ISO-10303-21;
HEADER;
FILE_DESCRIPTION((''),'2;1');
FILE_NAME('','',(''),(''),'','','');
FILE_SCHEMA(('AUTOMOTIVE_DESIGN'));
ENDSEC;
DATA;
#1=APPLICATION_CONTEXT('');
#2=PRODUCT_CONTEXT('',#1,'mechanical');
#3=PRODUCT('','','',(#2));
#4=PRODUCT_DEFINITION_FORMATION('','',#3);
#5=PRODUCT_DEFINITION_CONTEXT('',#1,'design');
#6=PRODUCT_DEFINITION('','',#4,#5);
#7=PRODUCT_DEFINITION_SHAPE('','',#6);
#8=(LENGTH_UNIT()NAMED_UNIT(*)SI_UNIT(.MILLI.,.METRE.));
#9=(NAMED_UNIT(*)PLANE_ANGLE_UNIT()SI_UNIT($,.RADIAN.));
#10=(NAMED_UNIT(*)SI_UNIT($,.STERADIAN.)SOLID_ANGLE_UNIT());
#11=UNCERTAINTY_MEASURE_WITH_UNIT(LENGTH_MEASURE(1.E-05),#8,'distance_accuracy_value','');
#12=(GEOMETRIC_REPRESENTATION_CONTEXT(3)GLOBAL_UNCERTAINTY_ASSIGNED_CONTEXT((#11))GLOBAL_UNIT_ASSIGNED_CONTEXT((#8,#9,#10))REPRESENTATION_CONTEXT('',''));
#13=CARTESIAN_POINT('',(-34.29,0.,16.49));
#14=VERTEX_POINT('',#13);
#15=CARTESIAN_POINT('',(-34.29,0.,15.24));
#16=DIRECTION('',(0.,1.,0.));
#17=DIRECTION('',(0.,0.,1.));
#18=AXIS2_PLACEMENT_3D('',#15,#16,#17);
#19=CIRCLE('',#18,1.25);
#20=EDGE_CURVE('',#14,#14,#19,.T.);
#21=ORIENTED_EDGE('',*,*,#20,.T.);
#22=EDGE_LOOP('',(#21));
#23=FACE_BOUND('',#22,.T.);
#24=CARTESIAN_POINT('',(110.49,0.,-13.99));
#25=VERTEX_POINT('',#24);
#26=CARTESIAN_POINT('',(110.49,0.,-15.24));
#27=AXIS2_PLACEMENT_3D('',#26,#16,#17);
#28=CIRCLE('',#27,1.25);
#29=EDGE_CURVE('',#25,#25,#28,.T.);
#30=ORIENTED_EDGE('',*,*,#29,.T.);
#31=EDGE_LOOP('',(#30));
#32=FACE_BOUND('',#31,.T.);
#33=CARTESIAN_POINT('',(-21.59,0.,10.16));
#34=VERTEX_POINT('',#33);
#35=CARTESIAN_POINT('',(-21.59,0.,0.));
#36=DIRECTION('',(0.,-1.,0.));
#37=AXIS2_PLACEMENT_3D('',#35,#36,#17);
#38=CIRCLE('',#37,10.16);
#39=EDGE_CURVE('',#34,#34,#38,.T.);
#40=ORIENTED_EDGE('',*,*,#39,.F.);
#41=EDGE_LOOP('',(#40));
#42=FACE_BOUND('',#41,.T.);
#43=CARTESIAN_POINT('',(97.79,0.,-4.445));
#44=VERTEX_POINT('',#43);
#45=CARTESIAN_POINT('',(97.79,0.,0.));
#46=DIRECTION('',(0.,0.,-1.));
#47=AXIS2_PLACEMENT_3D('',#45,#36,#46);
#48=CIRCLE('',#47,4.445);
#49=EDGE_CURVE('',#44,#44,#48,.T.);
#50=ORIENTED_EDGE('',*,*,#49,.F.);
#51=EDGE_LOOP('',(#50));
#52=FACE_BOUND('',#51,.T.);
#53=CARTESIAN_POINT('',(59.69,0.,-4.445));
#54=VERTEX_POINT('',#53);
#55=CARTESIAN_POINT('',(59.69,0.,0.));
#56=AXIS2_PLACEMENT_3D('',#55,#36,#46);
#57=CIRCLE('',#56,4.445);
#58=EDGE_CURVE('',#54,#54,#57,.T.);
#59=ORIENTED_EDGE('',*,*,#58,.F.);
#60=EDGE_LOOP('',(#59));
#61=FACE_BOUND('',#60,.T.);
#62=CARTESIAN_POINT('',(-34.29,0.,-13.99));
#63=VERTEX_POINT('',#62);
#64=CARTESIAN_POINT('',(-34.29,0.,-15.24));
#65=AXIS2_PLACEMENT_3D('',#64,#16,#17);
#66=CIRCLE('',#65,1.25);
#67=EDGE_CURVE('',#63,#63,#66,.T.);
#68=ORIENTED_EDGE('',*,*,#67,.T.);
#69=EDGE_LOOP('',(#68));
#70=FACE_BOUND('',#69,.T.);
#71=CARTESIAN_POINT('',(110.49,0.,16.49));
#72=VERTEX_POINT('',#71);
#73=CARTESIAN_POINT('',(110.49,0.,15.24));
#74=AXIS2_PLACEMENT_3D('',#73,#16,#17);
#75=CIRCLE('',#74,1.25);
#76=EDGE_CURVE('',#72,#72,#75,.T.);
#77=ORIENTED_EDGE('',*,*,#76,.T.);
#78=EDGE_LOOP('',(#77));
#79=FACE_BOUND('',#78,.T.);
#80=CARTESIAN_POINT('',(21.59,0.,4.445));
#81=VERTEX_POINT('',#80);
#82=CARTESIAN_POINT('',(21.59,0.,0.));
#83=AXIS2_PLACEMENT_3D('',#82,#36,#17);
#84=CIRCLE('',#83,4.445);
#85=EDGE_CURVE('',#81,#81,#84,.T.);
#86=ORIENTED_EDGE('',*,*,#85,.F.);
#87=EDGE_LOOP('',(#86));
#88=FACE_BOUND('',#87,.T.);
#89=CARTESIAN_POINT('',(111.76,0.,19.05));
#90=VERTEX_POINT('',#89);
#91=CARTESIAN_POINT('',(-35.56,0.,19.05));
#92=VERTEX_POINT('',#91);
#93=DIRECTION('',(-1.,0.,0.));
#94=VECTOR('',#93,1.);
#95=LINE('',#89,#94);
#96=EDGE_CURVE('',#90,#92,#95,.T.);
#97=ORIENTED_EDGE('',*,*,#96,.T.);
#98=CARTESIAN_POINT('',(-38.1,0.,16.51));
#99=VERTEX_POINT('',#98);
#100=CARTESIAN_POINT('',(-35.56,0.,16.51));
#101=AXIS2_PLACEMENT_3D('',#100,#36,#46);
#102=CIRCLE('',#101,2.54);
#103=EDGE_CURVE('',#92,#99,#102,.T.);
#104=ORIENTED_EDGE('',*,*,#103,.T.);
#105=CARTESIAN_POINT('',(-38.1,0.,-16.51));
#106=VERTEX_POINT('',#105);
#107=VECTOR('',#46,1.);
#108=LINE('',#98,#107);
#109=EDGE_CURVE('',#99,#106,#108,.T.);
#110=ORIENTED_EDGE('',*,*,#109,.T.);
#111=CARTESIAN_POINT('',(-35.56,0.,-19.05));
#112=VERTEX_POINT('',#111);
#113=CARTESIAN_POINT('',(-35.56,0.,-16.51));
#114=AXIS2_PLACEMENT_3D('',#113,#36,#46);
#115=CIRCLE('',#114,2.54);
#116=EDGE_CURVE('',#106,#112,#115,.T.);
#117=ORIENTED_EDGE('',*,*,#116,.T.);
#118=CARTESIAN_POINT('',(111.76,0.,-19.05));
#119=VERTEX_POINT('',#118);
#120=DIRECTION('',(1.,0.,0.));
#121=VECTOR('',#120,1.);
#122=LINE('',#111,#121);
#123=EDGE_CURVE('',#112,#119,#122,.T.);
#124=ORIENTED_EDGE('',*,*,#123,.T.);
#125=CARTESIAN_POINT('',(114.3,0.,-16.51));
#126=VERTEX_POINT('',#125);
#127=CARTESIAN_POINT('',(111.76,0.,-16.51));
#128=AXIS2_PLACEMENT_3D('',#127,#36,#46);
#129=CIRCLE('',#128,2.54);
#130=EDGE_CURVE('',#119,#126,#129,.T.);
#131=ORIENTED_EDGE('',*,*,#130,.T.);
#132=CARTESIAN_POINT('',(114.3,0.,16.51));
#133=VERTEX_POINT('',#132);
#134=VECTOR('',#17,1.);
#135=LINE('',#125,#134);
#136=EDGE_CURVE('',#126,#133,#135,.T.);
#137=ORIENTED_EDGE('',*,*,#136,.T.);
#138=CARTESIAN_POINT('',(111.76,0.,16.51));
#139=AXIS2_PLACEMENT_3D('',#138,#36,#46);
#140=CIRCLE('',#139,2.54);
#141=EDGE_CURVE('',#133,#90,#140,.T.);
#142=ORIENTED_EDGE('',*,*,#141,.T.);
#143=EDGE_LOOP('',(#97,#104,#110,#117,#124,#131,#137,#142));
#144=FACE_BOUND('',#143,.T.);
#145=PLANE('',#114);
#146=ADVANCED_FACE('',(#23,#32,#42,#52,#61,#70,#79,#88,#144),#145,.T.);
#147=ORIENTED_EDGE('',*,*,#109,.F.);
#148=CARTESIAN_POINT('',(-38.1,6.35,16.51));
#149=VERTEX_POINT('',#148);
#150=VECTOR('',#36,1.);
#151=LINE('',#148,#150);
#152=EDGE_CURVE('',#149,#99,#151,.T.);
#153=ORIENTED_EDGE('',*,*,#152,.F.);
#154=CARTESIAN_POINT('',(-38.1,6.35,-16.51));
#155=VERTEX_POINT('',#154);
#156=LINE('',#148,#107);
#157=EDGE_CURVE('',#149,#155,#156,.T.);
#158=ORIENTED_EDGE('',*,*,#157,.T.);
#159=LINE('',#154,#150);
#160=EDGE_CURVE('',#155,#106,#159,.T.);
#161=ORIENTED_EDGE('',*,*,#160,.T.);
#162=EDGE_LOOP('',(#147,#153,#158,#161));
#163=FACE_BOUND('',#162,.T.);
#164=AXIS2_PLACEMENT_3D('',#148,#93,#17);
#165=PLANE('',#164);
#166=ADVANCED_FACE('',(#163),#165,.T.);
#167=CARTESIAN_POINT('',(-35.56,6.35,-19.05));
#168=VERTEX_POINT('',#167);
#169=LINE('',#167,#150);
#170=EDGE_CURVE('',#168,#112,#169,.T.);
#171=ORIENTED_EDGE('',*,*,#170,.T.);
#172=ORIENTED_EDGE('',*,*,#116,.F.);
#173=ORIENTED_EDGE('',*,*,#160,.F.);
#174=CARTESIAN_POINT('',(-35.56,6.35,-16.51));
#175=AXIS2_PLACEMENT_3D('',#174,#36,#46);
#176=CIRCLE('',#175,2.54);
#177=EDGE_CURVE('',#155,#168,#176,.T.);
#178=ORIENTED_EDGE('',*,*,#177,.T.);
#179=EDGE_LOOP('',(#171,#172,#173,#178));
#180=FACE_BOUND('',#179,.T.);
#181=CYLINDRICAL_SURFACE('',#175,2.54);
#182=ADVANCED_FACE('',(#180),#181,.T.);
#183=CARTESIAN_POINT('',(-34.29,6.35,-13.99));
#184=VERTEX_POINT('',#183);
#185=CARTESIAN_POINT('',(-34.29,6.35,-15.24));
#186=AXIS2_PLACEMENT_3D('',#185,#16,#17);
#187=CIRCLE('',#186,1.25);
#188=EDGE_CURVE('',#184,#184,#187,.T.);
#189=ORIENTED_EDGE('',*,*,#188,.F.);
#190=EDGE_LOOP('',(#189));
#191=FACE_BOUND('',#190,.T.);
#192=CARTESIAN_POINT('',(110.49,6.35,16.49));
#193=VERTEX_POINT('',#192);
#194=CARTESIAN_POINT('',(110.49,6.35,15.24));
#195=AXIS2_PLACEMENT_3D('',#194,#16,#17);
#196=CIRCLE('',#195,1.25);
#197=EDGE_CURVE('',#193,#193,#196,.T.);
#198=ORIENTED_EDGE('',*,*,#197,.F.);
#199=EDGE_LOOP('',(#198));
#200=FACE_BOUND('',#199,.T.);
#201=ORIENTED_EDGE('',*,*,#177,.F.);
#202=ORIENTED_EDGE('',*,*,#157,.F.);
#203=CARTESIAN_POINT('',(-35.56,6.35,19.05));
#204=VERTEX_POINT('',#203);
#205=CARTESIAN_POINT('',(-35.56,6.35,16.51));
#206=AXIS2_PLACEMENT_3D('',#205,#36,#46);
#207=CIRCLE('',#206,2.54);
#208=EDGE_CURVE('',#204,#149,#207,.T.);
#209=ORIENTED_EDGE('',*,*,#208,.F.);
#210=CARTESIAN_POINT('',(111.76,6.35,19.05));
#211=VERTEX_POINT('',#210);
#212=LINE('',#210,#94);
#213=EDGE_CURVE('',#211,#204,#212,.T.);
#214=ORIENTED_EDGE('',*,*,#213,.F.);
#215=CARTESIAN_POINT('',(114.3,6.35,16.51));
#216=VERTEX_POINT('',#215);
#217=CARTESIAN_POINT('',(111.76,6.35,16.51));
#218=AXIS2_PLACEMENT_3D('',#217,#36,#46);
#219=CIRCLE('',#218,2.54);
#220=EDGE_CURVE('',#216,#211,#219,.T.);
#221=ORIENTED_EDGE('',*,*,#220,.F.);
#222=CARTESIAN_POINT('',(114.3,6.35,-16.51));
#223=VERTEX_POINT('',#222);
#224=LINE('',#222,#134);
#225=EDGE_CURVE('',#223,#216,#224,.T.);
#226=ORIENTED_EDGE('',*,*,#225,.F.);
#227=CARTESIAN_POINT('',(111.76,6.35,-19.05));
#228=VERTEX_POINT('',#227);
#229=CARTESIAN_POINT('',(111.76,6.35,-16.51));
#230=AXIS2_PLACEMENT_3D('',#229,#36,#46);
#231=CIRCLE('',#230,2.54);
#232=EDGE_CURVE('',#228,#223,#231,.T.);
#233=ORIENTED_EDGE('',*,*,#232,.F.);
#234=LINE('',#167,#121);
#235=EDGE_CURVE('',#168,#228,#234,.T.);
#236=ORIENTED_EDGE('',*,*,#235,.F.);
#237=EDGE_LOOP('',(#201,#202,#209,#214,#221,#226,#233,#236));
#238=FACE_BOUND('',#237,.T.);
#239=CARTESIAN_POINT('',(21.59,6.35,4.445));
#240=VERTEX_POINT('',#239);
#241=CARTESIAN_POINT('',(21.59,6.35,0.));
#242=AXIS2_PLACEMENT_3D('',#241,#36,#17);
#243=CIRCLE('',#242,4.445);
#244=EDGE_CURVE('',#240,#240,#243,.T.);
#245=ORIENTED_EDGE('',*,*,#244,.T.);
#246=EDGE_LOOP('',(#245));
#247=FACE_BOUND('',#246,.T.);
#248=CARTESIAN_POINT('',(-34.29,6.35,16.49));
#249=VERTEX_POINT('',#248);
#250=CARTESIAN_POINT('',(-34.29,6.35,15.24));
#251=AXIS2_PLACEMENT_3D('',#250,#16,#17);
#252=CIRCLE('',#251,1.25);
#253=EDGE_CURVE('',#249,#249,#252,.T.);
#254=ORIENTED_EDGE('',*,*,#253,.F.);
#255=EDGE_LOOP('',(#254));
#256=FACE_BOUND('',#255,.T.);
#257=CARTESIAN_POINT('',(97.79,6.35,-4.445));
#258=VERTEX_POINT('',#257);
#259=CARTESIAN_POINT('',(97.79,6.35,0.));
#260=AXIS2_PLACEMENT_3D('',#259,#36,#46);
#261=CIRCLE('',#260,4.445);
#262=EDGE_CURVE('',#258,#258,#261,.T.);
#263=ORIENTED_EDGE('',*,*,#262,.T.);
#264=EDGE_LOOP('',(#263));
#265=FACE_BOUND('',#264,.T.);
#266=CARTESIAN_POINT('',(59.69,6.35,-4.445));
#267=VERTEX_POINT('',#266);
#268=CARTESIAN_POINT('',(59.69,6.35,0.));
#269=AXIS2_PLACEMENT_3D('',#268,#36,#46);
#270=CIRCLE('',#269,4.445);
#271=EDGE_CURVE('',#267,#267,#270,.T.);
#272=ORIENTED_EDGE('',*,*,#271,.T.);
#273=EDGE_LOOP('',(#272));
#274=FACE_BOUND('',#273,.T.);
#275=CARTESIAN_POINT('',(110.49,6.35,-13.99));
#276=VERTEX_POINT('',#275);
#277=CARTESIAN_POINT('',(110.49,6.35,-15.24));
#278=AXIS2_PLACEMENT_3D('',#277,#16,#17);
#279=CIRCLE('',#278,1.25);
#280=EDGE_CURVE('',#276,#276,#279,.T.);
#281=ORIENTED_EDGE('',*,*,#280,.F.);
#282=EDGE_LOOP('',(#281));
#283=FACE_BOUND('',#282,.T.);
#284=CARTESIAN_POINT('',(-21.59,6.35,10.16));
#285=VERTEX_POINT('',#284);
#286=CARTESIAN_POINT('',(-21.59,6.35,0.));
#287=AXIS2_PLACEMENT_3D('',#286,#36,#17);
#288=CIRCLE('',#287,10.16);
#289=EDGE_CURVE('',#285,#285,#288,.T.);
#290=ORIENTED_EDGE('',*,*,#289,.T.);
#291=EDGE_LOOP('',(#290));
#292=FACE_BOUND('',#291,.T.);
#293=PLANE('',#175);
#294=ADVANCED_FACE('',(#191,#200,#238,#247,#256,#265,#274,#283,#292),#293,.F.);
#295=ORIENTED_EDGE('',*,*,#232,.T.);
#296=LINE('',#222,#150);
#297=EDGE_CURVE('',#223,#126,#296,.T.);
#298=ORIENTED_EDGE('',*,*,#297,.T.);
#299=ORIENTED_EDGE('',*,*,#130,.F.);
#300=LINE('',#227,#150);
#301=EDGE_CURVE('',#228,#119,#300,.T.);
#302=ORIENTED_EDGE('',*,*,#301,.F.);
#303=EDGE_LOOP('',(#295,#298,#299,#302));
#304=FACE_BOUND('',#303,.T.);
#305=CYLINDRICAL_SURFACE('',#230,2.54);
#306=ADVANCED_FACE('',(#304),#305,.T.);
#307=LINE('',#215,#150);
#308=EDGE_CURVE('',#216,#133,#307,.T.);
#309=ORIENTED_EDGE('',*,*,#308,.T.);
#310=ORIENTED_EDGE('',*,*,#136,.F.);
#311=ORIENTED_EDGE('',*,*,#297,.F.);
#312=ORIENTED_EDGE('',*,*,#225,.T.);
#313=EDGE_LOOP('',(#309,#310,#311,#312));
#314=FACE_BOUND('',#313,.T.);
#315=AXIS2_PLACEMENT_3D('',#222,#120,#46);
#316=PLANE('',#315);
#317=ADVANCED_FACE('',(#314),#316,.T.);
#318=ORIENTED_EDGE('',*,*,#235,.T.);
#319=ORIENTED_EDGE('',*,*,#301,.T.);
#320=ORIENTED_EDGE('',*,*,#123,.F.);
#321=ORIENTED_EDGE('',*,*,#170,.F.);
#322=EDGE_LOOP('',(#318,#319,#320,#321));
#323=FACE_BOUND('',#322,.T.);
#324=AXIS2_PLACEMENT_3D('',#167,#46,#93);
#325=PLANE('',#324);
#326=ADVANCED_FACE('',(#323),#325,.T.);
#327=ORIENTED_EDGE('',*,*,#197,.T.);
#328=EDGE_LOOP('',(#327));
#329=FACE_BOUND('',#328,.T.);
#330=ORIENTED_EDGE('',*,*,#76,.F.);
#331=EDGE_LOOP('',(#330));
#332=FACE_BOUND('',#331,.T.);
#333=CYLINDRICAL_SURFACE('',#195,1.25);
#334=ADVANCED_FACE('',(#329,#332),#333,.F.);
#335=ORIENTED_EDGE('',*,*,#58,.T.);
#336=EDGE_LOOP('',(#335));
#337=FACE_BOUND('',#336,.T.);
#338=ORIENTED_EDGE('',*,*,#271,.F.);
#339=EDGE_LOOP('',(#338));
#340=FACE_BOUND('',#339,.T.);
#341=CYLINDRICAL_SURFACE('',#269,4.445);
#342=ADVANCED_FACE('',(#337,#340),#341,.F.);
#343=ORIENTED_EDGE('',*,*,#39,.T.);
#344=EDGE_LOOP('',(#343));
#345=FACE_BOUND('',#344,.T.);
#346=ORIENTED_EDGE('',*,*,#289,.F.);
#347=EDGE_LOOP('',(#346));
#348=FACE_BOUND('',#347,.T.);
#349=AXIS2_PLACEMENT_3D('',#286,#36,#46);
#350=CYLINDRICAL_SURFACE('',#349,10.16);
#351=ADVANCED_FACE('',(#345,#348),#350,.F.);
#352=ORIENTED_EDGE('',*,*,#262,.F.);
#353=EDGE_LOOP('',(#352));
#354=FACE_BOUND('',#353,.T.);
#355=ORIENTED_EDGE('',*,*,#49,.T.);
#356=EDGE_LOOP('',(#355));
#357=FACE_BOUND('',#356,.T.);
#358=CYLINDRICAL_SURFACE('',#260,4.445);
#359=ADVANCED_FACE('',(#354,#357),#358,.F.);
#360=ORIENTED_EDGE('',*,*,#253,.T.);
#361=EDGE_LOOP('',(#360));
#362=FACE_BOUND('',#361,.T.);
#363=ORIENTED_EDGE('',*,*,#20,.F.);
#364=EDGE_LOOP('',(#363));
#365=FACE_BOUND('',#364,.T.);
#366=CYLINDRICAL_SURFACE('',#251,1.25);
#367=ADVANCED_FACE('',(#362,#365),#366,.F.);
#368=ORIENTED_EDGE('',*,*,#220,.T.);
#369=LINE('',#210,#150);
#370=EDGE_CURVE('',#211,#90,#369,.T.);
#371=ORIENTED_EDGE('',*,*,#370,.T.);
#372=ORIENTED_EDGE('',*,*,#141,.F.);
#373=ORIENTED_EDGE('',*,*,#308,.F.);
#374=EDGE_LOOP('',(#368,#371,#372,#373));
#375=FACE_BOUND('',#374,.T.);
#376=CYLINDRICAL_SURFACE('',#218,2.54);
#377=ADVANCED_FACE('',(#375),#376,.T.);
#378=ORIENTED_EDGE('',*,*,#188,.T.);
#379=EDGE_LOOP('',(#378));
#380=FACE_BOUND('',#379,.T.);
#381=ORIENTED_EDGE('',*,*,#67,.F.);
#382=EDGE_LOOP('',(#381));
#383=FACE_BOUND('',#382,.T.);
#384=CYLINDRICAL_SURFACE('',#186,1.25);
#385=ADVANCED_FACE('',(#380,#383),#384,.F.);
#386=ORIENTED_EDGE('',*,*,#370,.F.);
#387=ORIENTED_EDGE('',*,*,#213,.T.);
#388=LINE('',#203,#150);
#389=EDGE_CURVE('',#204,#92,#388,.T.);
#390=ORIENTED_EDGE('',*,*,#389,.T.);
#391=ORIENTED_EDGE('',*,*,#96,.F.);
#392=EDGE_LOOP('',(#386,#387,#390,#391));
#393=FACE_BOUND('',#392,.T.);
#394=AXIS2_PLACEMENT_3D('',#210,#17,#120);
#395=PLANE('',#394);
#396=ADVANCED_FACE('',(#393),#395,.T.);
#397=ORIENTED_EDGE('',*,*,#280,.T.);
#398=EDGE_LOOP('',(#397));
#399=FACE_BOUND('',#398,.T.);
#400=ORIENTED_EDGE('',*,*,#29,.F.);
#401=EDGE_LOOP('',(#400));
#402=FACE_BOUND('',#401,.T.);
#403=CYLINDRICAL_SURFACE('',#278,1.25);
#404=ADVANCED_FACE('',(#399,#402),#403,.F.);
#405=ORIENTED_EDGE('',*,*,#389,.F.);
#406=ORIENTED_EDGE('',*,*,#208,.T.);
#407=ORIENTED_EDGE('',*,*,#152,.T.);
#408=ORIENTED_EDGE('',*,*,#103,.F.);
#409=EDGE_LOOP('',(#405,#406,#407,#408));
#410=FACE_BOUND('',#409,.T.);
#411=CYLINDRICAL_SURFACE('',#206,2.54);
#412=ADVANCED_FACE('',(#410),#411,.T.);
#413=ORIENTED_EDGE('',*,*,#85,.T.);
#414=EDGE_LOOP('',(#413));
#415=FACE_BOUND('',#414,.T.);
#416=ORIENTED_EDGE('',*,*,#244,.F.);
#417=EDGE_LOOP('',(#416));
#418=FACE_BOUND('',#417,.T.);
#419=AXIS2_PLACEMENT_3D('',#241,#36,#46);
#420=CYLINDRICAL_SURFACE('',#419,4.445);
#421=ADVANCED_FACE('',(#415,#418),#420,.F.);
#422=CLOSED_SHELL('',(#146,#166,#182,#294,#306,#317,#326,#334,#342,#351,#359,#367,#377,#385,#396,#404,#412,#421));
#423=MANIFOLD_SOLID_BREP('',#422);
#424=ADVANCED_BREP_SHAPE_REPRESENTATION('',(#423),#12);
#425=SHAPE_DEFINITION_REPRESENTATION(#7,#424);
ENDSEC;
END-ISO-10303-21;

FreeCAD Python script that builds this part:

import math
import FreeCAD as App
import Part
import Sketcher

V = App.Vector
Q = App.Units.Quantity

doc = App.newDocument("Part")
body = doc.addObject("PartDesign::Body", "Body")

sketch1 = body.newObject("Sketcher::SketchObject", "Sketch")
sketch1.AttachmentSupport = (doc.getObject("XZ_Plane"), [""])
sketch1.MapMode = "FlatFace"
sketch1.addGeometry([
    Part.LineSegment(V(-35.6, -19.1, 0), V(111.8, -19.1, 0)),
    Part.ArcOfCircle(Part.Circle(V(111.8, -16.5, 0), V(0, 0, 1), 2.5), math.radians(-90), math.radians(0)),
    Part.LineSegment(V(114.3, -16.5, 0), V(114.3, 16.5, 0)),
    Part.ArcOfCircle(Part.Circle(V(111.8, 16.5, 0), V(0, 0, 1), 2.5), math.radians(0), math.radians(90)),
    Part.LineSegment(V(111.8, 19.1, 0), V(-35.6, 19.1, 0)),
    Part.ArcOfCircle(Part.Circle(V(-35.6, 16.5, 0), V(0, 0, 1), 2.5), math.radians(90), math.radians(180)),
    Part.LineSegment(V(-38.1, 16.5, 0), V(-38.1, -16.5, 0)),
    Part.ArcOfCircle(Part.Circle(V(-35.6, -16.5, 0), V(0, 0, 1), 2.5), math.radians(-180), math.radians(-90)),
    Part.Circle(V(-21.6, 0, 0), V(0, 0, 1), 10.2),
    Part.Circle(V(21.6, 0, 0), V(0, 0, 1), 4.4),
    Part.Circle(V(59.7, 0, 0), V(0, 0, 1), 4.4),
    Part.Circle(V(97.8, 0, 0), V(0, 0, 1), 4.4),
], False)
sketch1.addConstraint([
    Sketcher.Constraint("Tangent", 0, 2, 1, 1),
    Sketcher.Constraint("Tangent", 1, 2, 2, 1),
    Sketcher.Constraint("Tangent", 2, 2, 3, 1),
    Sketcher.Constraint("Tangent", 3, 2, 4, 1),
    Sketcher.Constraint("Tangent", 4, 2, 5, 1),
    Sketcher.Constraint("Tangent", 5, 2, 6, 1),
    Sketcher.Constraint("Tangent", 6, 2, 7, 1),
    Sketcher.Constraint("Tangent", 7, 2, 0, 1),
    Sketcher.Constraint("Horizontal", 0),
    Sketcher.Constraint("Vertical", 2),
    Sketcher.Constraint("Horizontal", 4),
    Sketcher.Constraint("Vertical", 6),
    Sketcher.Constraint("Equal", 1, 3),
    Sketcher.Constraint("Equal", 3, 5),
    Sketcher.Constraint("Equal", 5, 7),
    Sketcher.Constraint("Equal", 9, 10),
    Sketcher.Constraint("Equal", 10, 11),
    Sketcher.Constraint("Symmetric", 8, 3, 9, 3, -1, 1),
    Sketcher.Constraint("PointOnObject", 8, 3, -1),
    Sketcher.Constraint("PointOnObject", 10, 3, -1),
    Sketcher.Constraint("PointOnObject", 11, 3, -1),
    Sketcher.Constraint("Diameter", 8, Q("0.8 in")),
    Sketcher.Constraint("Radius", 1, Q("0.1 in")),
    Sketcher.Constraint("Diameter", 9, Q("0.35 in")),
    Sketcher.Constraint("DistanceX", 0, 1, 0, 2, Q("5.8 in")),
    Sketcher.Constraint("DistanceY", 2, 1, 2, 2, Q("1.3 in")),
    Sketcher.Constraint("DistanceX", 9, 3, 11, 3, Q("3 in")),
    Sketcher.Constraint("DistanceX", -1, 1, 1, 3, Q("4.4 in")),
    Sketcher.Constraint("DistanceX", 8, 3, 9, 3, Q("1.7 in")),
    Sketcher.Constraint("DistanceX", 9, 3, 10, 3, Q("1.5 in")),
    Sketcher.Constraint("DistanceY", 1, 3, -1, 1, Q("0.65 in")),
])
pad1 = body.newObject("PartDesign::Pad", "Pad")
pad1.Profile = sketch1
pad1.Length = Q("0.25 in")
pad1.Reversed = True

sketch2 = body.newObject("Sketcher::SketchObject", "Sketch001")
sketch2.AttachmentSupport = (doc.getObject("XZ_Plane"), [""])
sketch2.MapMode = "FlatFace"
sketch2.AttachmentOffset = App.Placement(V(0, 0, -0.25 * 25.4), App.Rotation())
sketch2.addGeometry([
    Part.Circle(V(-34.3, -15.2, 0), V(0, 0, 1), 1.2),
    Part.Circle(V(110.5, -15.2, 0), V(0, 0, 1), 1.2),
    Part.Circle(V(110.5, 15.2, 0), V(0, 0, 1), 1.2),
    Part.Circle(V(-34.3, 15.2, 0), V(0, 0, 1), 1.2),
], False)
sketch2.addConstraint([
    Sketcher.Constraint("Equal", 0, 1),
    Sketcher.Constraint("Equal", 1, 2),
    Sketcher.Constraint("Equal", 2, 3),
    Sketcher.Constraint("Symmetric", 1, 3, 2, 3, -1),
    Sketcher.Constraint("Symmetric", 0, 3, 3, 3, -1),
    Sketcher.Constraint("Horizontal", 0, 3, 1, 3),
    Sketcher.Constraint("DistanceY", 0, 3, -1, 1, Q("0.6 in")),
    Sketcher.Constraint("DistanceX", 0, 3, 1, 3, Q("5.7 in")),
    Sketcher.Constraint("Diameter", 0, 2.5),
    Sketcher.Constraint("DistanceX", 0, 3, -1, 1, Q("1.35 in")),
])
doc.recompute()
hole = body.newObject("PartDesign::Hole", "Hole")
hole.Profile = sketch2
hole.ThreadType = "None"
hole.Diameter = 2.5
hole.DepthType = "ThroughAll"
hole.Reversed = True

doc.recompute()
